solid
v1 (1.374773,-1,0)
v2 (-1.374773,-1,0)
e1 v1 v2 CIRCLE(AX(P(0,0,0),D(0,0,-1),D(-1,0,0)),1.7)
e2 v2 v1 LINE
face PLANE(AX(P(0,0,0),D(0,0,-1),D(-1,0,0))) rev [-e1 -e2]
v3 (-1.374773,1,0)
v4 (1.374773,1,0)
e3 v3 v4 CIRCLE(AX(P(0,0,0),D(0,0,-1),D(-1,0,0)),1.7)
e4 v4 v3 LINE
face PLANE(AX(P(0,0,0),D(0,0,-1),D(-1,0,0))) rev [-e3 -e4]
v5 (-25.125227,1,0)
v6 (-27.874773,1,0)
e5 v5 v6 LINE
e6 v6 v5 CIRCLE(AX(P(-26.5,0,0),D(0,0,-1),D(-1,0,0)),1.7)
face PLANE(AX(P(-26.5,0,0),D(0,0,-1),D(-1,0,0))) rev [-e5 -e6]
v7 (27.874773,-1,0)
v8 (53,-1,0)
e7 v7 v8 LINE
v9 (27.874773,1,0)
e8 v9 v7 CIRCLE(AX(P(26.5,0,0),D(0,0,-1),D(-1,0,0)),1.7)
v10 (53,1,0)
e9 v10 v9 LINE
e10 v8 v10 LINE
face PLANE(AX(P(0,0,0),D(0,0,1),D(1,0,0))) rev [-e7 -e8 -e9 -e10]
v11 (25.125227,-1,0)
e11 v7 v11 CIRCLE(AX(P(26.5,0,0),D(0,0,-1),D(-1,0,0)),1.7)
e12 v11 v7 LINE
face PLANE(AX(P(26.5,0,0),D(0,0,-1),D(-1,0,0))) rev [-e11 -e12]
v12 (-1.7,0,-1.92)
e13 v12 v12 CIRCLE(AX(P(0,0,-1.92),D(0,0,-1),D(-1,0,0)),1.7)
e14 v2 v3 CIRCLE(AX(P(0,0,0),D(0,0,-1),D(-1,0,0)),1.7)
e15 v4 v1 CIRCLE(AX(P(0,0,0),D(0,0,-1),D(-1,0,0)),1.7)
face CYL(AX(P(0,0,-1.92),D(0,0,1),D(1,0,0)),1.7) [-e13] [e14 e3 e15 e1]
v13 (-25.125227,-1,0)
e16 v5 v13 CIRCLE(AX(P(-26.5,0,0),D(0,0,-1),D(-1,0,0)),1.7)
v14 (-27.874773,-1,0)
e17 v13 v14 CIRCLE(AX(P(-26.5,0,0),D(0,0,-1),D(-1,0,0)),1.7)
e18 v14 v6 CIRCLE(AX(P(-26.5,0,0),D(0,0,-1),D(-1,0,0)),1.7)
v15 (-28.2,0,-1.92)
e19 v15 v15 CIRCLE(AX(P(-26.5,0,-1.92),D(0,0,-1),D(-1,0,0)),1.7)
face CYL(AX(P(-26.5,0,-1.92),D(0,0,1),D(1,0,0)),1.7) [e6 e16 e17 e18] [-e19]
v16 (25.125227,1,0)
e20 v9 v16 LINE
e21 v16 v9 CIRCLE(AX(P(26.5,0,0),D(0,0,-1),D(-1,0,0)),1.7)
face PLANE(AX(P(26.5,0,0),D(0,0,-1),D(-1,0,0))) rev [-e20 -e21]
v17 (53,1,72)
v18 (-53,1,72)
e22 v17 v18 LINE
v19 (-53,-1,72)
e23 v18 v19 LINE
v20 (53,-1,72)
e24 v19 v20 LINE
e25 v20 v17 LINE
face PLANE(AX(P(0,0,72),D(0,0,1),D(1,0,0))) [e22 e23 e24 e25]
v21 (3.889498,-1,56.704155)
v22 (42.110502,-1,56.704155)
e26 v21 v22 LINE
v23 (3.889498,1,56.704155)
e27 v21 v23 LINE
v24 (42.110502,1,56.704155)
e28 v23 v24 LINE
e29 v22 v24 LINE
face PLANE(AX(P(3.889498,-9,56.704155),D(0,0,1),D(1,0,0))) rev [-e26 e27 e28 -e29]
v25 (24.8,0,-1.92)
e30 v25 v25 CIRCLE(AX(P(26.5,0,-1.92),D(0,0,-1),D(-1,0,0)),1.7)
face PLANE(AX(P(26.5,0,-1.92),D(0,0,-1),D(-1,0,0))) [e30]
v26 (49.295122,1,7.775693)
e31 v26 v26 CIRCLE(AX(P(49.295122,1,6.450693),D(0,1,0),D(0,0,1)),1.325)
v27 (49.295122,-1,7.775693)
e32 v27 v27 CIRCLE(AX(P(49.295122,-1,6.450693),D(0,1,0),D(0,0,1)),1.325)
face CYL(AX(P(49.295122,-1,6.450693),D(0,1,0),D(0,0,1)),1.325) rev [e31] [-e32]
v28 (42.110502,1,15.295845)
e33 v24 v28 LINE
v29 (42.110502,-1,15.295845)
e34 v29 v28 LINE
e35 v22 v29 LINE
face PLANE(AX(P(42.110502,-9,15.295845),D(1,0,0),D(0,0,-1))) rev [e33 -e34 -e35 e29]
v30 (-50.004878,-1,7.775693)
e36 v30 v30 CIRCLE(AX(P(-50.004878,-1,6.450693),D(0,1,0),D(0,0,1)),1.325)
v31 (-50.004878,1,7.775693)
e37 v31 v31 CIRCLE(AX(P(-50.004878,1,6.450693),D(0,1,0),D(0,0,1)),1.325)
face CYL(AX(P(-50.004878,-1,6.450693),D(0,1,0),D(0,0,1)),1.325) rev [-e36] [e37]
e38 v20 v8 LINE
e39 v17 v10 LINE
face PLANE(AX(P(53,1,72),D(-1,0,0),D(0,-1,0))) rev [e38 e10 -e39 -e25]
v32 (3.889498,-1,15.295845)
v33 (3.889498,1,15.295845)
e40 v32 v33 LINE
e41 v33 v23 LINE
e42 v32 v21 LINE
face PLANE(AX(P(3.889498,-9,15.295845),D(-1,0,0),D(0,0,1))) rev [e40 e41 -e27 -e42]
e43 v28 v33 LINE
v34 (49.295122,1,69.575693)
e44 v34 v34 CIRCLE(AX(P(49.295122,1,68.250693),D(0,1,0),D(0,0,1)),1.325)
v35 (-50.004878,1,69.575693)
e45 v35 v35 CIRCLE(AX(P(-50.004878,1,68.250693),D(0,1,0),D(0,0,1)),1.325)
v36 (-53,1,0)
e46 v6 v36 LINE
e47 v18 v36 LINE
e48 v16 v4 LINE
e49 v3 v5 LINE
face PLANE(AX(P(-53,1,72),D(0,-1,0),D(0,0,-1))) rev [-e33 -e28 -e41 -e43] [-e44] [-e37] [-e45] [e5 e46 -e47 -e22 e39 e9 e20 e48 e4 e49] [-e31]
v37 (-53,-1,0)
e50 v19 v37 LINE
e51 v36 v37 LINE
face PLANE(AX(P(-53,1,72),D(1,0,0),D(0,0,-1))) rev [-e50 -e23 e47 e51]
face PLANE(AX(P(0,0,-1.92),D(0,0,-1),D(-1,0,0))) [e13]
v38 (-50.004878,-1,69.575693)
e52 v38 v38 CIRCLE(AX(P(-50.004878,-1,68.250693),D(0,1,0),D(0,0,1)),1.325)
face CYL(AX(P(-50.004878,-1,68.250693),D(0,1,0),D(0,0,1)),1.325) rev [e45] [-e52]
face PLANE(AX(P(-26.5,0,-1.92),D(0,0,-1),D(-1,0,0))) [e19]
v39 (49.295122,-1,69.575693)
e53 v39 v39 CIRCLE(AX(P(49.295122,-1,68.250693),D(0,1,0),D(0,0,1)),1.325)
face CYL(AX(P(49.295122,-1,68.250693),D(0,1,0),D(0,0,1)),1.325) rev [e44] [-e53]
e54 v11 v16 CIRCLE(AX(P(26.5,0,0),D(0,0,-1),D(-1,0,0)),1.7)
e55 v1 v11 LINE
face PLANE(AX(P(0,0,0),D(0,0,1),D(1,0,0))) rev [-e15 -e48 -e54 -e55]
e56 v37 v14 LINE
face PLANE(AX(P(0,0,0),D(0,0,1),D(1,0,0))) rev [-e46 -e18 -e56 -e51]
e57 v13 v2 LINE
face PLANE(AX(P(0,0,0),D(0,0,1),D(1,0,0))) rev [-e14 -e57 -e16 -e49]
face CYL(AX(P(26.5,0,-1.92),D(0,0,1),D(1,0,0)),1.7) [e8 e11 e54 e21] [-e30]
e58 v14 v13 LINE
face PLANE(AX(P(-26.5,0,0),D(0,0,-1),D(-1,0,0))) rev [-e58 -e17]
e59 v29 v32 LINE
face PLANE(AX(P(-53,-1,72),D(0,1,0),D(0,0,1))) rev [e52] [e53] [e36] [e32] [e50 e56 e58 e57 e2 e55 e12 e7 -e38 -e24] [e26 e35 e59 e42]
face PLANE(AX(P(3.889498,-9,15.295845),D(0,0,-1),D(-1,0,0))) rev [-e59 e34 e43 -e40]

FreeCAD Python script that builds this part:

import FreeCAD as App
import Part
import Sketcher
from FreeCAD import Vector

doc = App.newDocument("Part")
params = doc.addObject("Spreadsheet::Sheet", "Params")
for row, (alias, value) in enumerate([
    ("sketch1_width", "106 mm"),
    ("sketch1_height", "2 mm"),
    ("pad1_length", "72 mm"),
    ("sketch2_diameter", "2.65 mm"),
    ("pocket2_length", "10 mm"),
    ("sketch4_diameter", "3.4 mm"),
    ("pad2_length", "1.92 mm"),
], start=1):
    params.set(f"A{row}", alias)
    params.set(f"B{row}", "=" + value)
    params.setAlias(f"B{row}", alias)

body = doc.addObject("PartDesign::Body", "Body")

# Sketch on XY plane
sketch1 = body.newObject("Sketcher::SketchObject", "Sketch")
sketch1.AttachmentSupport = (doc.getObject("XY_Plane"), [""])
sketch1.MapMode = "FlatFace"
sketch1.addGeometry(Part.LineSegment(Vector(-53, 1, 0), Vector(-53, -1, 0)), False)
sketch1.addGeometry(Part.LineSegment(Vector(-53, -1, 0), Vector(53, -1, 0)), False)
sketch1.addGeometry(Part.LineSegment(Vector(53, -1, 0), Vector(53, 1, 0)), False)
sketch1.addGeometry(Part.LineSegment(Vector(53, 1, 0), Vector(-53, 1, 0)), False)
sketch1.addConstraint(Sketcher.Constraint("Coincident", 0, 2, 1, 1))
sketch1.addConstraint(Sketcher.Constraint("Coincident", 1, 2, 2, 1))
sketch1.addConstraint(Sketcher.Constraint("Coincident", 2, 2, 3, 1))
sketch1.addConstraint(Sketcher.Constraint("Coincident", 3, 2, 0, 1))
sketch1.addConstraint(Sketcher.Constraint("Vertical", 0))
sketch1.addConstraint(Sketcher.Constraint("Horizontal", 1))
sketch1.addConstraint(Sketcher.Constraint("Vertical", 2))
sketch1.addConstraint(Sketcher.Constraint("Horizontal", 3))
sketch1.addConstraint(Sketcher.Constraint("Symmetric", 0, 2, 2, 2, -1, 1))
sketch1.addConstraint(Sketcher.Constraint("DistanceX", 1, 1, 1, 2, 106.0))
sketch1.addConstraint(Sketcher.Constraint("DistanceY", 0, 2, 0, 1, 2.0))
sketch1.setExpression("Constraints[9]", "Params.sketch1_width")
sketch1.setExpression("Constraints[10]", "Params.sketch1_height")
pad1 = body.newObject("PartDesign::Pad", "Pad")
pad1.Profile = sketch1
pad1.setExpression("Length", "Params.pad1_length")

# Sketch on XZ plane
sketch2 = body.newObject("Sketcher::SketchObject", "Sketch001")
sketch2.AttachmentSupport = (doc.getObject("XZ_Plane"), [""])
sketch2.MapMode = "FlatFace"
sketch2.AttachmentOffset = App.Placement(Vector(0, 0, -1), App.Rotation())
sketch2.addGeometry(Part.Circle(Vector(-50, 6.5, 0), Vector(0, 0, 1), 1.3), False)
sketch2.addGeometry(Part.Circle(Vector(-50, 68.3, 0), Vector(0, 0, 1), 1.3), False)
sketch2.addGeometry(Part.Circle(Vector(49.3, 68.3, 0), Vector(0, 0, 1), 1.3), False)
sketch2.addGeometry(Part.Circle(Vector(49.3, 6.5, 0), Vector(0, 0, 1), 1.3), False)
sketch2.addConstraint(Sketcher.Constraint("Equal", 0, 1))
sketch2.addConstraint(Sketcher.Constraint("Equal", 1, 2))
sketch2.addConstraint(Sketcher.Constraint("Equal", 2, 3))
sketch2.addConstraint(Sketcher.Constraint("Horizontal", 1, 3, 2, 3))
sketch2.addConstraint(Sketcher.Constraint("Horizontal", 0, 3, 3, 3))
sketch2.addConstraint(Sketcher.Constraint("Vertical", 0, 3, 1, 3))
sketch2.addConstraint(Sketcher.Constraint("Vertical", 2, 3, 3, 3))
sketch2.addConstraint(Sketcher.Constraint("Diameter", 0, 2.65))
sketch2.addConstraint(Sketcher.Constraint("DistanceY", 0, 3, 1, 3, 61.8))
sketch2.addConstraint(Sketcher.Constraint("DistanceX", 1, 3, 2, 3, 99.3))
sketch2.addConstraint(Sketcher.Constraint("DistanceX", 0, 3, -1, 1, 50.004878))
sketch2.addConstraint(Sketcher.Constraint("DistanceY", -1, 1, 0, 3, 6.450693))
sketch2.setExpression("Constraints[7]", "Params.sketch2_diameter")
pocket1 = body.newObject("PartDesign::Pocket", "Pocket")
pocket1.Profile = sketch2
pocket1.Type = "ThroughAll"
pocket1.Reversed = True

# Sketch on XZ plane
sketch3 = body.newObject("Sketcher::SketchObject", "Sketch002")
sketch3.AttachmentSupport = (doc.getObject("XZ_Plane"), [""])
sketch3.MapMode = "FlatFace"
sketch3.AttachmentOffset = App.Placement(Vector(0, 0, -1), App.Rotation())
sketch3.addGeometry(Part.LineSegment(Vector(4, 15, 0), Vector(4, 57, 0)), False)
sketch3.addGeometry(Part.LineSegment(Vector(4, 57, 0), Vector(42, 57, 0)), False)
sketch3.addGeometry(Part.LineSegment(Vector(42, 57, 0), Vector(42, 15, 0)), False)
sketch3.addGeometry(Part.LineSegment(Vector(42, 15, 0), Vector(4, 15, 0)), False)
sketch3.addConstraint(Sketcher.Constraint("Coincident", 0, 2, 1, 1))
sketch3.addConstraint(Sketcher.Constraint("Coincident", 1, 2, 2, 1))
sketch3.addConstraint(Sketcher.Constraint("Coincident", 2, 2, 3, 1))
sketch3.addConstraint(Sketcher.Constraint("Coincident", 3, 2, 0, 1))
sketch3.addConstraint(Sketcher.Constraint("Vertical", 0))
sketch3.addConstraint(Sketcher.Constraint("Horizontal", 1))
sketch3.addConstraint(Sketcher.Constraint("Vertical", 2))
sketch3.addConstraint(Sketcher.Constraint("Horizontal", 3))
sketch3.addConstraint(Sketcher.Constraint("DistanceY", 0, 1, 0, 2, 41.408309))
sketch3.addConstraint(Sketcher.Constraint("DistanceX", -1, 1, 0, 2, 3.889498))
sketch3.addConstraint(Sketcher.Constraint("DistanceX", -1, 1, 1, 2, 42.110502))
sketch3.addConstraint(Sketcher.Constraint("DistanceY", -1, 1, 0, 2, 56.704155))
pocket2 = body.newObject("PartDesign::Pocket", "Pocket001")
pocket2.Profile = sketch3
pocket2.setExpression("Length", "Params.pocket2_length")
pocket2.Reversed = True

# Sketch on XY plane
sketch4 = body.newObject("Sketcher::SketchObject", "Sketch003")
sketch4.AttachmentSupport = (doc.getObject("XY_Plane"), [""])
sketch4.MapMode = "FlatFace"
sketch4.addGeometry(Part.Circle(Vector(0, 0, 0), Vector(0, 0, 1), 1.7), False)
sketch4.addGeometry(Part.Circle(Vector(-26.5, 0, 0), Vector(0, 0, 1), 1.7), False)
sketch4.addGeometry(Part.Circle(Vector(26.5, 0, 0), Vector(0, 0, 1), 1.7), False)
sketch4.addConstraint(Sketcher.Constraint("Coincident", 0, 3, -1, 1))
sketch4.addConstraint(Sketcher.Constraint("Equal", 0, 1))
sketch4.addConstraint(Sketcher.Constraint("Equal", 1, 2))
sketch4.addConstraint(Sketcher.Constraint("Symmetric", 1, 3, 2, 3, -1, 1))
sketch4.addConstraint(Sketcher.Constraint("PointOnObject", 1, 3, -1))
sketch4.addConstraint(Sketcher.Constraint("Diameter", 0, 3.4))
sketch4.addConstraint(Sketcher.Constraint("DistanceX", 1, 3, 2, 3, 53.0))
sketch4.setExpression("Constraints[5]", "Params.sketch4_diameter")
pad2 = body.newObject("PartDesign::Pad", "Pad001")
pad2.Profile = sketch4
pad2.setExpression("Length", "Params.pad2_length")
pad2.Reversed = True

doc.recompute()
